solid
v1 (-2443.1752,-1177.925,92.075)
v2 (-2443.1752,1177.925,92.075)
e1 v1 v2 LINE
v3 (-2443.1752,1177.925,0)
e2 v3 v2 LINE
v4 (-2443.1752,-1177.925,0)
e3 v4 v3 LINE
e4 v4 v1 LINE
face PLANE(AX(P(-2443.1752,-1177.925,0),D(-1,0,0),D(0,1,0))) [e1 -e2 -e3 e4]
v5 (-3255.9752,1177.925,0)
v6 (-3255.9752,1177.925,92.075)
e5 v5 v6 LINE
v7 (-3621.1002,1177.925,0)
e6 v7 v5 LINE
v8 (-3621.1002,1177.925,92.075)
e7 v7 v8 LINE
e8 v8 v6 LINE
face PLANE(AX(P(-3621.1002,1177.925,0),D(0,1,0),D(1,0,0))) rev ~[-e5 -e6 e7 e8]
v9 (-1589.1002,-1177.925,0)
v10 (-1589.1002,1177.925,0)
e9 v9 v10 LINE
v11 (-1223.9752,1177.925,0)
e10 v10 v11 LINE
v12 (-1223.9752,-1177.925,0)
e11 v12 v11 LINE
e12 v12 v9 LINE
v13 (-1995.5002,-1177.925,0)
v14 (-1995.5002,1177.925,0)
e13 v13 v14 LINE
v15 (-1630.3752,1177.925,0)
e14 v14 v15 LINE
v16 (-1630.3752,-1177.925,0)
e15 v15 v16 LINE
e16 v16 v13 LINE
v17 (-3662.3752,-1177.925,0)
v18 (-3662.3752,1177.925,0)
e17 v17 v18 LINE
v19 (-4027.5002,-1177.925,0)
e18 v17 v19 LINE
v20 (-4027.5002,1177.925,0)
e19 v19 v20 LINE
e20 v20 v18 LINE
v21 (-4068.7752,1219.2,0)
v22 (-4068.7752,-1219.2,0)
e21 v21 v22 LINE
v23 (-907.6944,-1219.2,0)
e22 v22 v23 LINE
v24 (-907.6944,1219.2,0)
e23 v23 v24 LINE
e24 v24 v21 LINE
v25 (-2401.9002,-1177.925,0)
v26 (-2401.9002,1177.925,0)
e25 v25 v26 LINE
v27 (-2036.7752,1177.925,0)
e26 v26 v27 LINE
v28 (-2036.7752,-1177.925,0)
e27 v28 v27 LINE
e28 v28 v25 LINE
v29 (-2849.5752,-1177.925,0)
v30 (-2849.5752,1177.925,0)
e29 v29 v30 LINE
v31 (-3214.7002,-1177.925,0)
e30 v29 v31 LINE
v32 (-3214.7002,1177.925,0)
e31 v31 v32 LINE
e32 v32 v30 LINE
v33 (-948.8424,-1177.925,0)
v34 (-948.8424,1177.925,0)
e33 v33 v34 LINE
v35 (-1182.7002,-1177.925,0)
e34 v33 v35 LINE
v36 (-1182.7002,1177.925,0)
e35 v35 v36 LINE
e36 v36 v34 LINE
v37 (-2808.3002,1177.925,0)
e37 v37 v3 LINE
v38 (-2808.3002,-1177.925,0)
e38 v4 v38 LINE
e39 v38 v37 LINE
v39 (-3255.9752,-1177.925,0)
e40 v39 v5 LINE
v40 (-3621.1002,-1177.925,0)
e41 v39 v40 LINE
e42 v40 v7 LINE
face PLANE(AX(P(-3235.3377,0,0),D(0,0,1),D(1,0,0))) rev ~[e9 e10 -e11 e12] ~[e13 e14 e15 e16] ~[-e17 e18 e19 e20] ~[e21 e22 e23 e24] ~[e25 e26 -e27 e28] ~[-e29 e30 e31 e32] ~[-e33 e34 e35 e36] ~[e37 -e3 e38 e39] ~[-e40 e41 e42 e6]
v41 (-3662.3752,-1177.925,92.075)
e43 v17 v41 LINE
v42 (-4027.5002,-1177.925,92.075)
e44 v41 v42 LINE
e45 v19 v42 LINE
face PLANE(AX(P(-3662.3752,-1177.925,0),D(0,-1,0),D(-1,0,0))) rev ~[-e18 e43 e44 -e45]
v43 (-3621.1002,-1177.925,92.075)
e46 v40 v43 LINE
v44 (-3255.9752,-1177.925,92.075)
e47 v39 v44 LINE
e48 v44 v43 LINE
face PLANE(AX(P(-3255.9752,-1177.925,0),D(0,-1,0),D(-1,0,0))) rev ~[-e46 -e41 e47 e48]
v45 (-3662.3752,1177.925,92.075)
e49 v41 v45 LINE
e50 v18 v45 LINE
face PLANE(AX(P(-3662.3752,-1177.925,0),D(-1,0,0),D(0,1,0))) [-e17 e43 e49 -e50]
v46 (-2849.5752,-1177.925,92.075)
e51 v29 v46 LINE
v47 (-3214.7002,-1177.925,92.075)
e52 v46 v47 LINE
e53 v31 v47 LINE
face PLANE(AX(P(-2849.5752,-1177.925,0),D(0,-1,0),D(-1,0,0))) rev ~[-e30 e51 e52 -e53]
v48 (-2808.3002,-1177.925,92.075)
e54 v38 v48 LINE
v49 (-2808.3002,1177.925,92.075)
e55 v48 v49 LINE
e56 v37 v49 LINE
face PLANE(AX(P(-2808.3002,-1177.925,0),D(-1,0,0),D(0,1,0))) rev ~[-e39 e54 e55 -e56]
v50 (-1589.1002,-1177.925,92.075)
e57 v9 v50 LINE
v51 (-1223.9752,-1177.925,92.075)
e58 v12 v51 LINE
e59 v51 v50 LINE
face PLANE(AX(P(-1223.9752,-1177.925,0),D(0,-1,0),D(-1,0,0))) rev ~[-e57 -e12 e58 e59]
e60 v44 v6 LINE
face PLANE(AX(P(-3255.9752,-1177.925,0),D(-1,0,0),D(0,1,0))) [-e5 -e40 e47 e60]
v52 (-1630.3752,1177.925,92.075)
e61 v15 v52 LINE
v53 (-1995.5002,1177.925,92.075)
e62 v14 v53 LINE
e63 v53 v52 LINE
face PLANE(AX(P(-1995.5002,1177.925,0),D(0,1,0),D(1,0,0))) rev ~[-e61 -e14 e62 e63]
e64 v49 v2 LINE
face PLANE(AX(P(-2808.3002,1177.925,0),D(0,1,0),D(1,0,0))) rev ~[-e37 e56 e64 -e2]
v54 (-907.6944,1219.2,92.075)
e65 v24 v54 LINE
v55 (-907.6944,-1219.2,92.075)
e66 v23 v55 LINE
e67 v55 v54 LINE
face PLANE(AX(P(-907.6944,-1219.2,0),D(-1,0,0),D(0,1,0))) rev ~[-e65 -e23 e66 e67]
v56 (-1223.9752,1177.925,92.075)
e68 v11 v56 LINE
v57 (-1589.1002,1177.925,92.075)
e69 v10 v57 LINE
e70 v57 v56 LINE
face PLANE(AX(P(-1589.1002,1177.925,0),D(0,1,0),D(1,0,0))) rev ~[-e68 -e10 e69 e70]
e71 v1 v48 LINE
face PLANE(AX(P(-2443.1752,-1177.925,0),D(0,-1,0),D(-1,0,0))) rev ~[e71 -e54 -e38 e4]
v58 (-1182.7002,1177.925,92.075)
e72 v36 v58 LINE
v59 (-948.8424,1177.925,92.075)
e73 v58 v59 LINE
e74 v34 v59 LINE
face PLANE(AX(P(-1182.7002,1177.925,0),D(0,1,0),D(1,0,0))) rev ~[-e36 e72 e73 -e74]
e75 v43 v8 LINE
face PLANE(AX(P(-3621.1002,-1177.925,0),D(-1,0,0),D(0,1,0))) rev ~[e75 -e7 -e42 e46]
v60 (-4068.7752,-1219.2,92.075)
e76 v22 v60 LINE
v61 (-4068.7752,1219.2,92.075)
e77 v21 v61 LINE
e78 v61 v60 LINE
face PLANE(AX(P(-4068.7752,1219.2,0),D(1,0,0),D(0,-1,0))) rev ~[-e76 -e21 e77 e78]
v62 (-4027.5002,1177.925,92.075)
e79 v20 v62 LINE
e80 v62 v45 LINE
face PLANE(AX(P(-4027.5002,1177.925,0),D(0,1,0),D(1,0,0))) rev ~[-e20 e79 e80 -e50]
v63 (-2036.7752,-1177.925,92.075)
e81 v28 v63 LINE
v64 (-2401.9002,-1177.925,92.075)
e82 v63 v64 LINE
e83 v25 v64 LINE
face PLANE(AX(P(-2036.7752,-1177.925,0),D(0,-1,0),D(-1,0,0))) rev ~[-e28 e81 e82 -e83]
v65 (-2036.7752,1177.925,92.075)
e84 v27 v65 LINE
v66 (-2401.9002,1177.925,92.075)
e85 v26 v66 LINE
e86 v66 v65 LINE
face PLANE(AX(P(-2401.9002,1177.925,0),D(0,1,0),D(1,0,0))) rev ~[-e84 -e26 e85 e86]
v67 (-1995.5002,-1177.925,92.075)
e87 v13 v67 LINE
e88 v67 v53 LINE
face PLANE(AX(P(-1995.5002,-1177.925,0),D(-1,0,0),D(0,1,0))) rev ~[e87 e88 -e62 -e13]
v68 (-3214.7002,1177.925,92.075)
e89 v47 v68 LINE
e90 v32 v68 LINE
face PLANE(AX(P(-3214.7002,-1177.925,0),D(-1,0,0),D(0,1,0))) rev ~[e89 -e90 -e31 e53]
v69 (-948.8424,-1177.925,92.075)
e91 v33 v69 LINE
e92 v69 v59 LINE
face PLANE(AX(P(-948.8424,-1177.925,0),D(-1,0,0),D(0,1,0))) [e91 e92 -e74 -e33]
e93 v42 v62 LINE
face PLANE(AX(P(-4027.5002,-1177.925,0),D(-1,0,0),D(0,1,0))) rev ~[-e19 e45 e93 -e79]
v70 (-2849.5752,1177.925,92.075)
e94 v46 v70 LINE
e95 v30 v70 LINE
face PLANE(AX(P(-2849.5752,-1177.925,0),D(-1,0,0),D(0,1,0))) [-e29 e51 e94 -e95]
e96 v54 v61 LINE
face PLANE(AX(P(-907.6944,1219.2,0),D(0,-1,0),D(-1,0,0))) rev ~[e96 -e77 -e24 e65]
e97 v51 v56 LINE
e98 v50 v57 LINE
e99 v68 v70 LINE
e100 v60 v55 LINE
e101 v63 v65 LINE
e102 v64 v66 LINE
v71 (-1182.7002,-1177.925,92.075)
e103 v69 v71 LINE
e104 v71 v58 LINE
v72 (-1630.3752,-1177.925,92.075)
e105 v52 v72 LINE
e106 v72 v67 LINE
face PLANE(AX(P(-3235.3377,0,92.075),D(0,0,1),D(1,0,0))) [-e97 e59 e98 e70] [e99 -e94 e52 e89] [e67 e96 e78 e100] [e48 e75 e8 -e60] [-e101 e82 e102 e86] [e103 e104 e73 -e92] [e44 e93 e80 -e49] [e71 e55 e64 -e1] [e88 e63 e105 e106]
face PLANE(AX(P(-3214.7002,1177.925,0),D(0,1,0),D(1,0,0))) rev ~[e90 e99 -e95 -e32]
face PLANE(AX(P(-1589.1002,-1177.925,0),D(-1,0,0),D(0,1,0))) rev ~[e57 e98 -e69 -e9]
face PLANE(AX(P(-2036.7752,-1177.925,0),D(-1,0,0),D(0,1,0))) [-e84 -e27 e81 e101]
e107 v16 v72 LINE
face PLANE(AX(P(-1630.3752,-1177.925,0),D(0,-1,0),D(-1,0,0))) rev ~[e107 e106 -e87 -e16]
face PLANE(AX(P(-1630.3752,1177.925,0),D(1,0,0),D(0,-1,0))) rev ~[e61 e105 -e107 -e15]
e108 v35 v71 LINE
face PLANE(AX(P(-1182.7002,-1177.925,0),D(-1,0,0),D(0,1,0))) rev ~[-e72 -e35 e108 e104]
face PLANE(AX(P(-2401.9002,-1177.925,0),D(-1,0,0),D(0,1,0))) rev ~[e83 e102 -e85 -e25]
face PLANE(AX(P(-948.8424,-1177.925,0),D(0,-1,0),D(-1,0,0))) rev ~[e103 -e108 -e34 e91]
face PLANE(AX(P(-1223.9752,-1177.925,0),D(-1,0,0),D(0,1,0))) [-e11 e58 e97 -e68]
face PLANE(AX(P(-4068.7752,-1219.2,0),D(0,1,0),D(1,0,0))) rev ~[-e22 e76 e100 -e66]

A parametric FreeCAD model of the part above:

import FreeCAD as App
import Part
import Sketcher
from FreeCAD import Vector
Q = App.Units.Quantity


def add_polygon(sketch, points):
    """Adds a closed chain of lines whose ends are joined by coincident constraints."""
    first, n = sketch.GeometryCount, len(points)
    for a, b in zip(points, points[1:] + points[:1]):
        sketch.addGeometry(Part.LineSegment(App.Vector(*a, 0), App.Vector(*b, 0)), False)
    for i in range(n):
        sketch.addConstraint(Sketcher.Constraint("Coincident", first + i, 2, first + (i + 1) % n, 1))

doc = App.newDocument("Part")
body = doc.addObject("PartDesign::Body", "Body")

# Sketch on XY plane
sketch1 = body.newObject("Sketcher::SketchObject", "Sketch")
sketch1.AttachmentSupport = (doc.getObject("XY_Plane"), [""])
sketch1.MapMode = "FlatFace"
add_polygon(sketch1, [(-908, -1219), (-908, 1219), (-4069, 1219), (-4069, -1219)])  # lines 0-3
add_polygon(sketch1, [(-3662, -1178), (-4028, -1178), (-4028, 1178), (-3662, 1178)])  # lines 4-7
add_polygon(sketch1, [(-3256, 1178), (-3256, -1178), (-3621, -1178), (-3621, 1178)])  # lines 8-11
add_polygon(sketch1, [(-3215, -1178), (-3215, 1178), (-2850, 1178), (-2850, -1178)])  # lines 12-15
add_polygon(sketch1, [(-2808, -1178), (-2808, 1178), (-2443, 1178), (-2443, -1178)])  # lines 16-19
add_polygon(sketch1, [(-2402, -1178), (-2402, 1178), (-2037, 1178), (-2037, -1178)])  # lines 20-23
add_polygon(sketch1, [(-1996, 1178), (-1630, 1178), (-1630, -1178), (-1996, -1178)])  # lines 24-27
add_polygon(sketch1, [(-1224, 1178), (-1224, -1178), (-1589, -1178), (-1589, 1178)])  # lines 28-31
add_polygon(sketch1, [(-949, 1178), (-949, -1178), (-1183, -1178), (-1183, 1178)])  # lines 32-35
sketch1.addConstraint([
    Sketcher.Constraint("Vertical", 0),
    Sketcher.Constraint("Horizontal", 1),
    Sketcher.Constraint("Vertical", 2),
    Sketcher.Constraint("Horizontal", 3),
    Sketcher.Constraint("Horizontal", 4),
    Sketcher.Constraint("Vertical", 5),
    Sketcher.Constraint("Horizontal", 6),
    Sketcher.Constraint("Vertical", 7),
    Sketcher.Constraint("Vertical", 8),
    Sketcher.Constraint("Horizontal", 9),
    Sketcher.Constraint("Vertical", 10),
    Sketcher.Constraint("Horizontal", 11),
    Sketcher.Constraint("Vertical", 12),
    Sketcher.Constraint("Horizontal", 13),
    Sketcher.Constraint("Vertical", 14),
    Sketcher.Constraint("Horizontal", 15),
    Sketcher.Constraint("Vertical", 16),
    Sketcher.Constraint("Horizontal", 17),
    Sketcher.Constraint("Vertical", 18),
    Sketcher.Constraint("Horizontal", 19),
    Sketcher.Constraint("Vertical", 20),
    Sketcher.Constraint("Horizontal", 21),
    Sketcher.Constraint("Vertical", 22),
    Sketcher.Constraint("Horizontal", 23),
    Sketcher.Constraint("Horizontal", 24),
    Sketcher.Constraint("Vertical", 25),
    Sketcher.Constraint("Horizontal", 26),
    Sketcher.Constraint("Vertical", 27),
    Sketcher.Constraint("Vertical", 28),
    Sketcher.Constraint("Horizontal", 29),
    Sketcher.Constraint("Vertical", 30),
    Sketcher.Constraint("Horizontal", 31),
    Sketcher.Constraint("Vertical", 32),
    Sketcher.Constraint("Horizontal", 33),
    Sketcher.Constraint("Vertical", 34),
    Sketcher.Constraint("Horizontal", 35),
    Sketcher.Constraint("Horizontal", 7, 2, 8, 2),
    Sketcher.Constraint("Horizontal", 6, 2, 10, 2),
    Sketcher.Constraint("Horizontal", 11, 2, 12, 2),
    Sketcher.Constraint("Horizontal", 9, 2, 14, 2),
    Sketcher.Constraint("Horizontal", 13, 2, 16, 2),
    Sketcher.Constraint("Horizontal", 15, 2, 18, 2),
    Sketcher.Constraint("Horizontal", 17, 2, 20, 2),
    Sketcher.Constraint("Horizontal", 19, 2, 22, 2),
    Sketcher.Constraint("Horizontal", 21, 2, 24, 2),
    Sketcher.Constraint("Horizontal", 23, 2, 25, 2),
    Sketcher.Constraint("Horizontal", 26, 2, 28, 2),
    Sketcher.Constraint("Horizontal", 27, 2, 30, 2),
    Sketcher.Constraint("Horizontal", 29, 2, 32, 2),
    Sketcher.Constraint("Horizontal", 31, 2, 34, 2),
    Sketcher.Constraint("Equal", 6, 9),
    Sketcher.Constraint("Equal", 11, 13),
    Sketcher.Constraint("Equal", 15, 17),
    Sketcher.Constraint("Equal", 19, 21),
    Sketcher.Constraint("Equal", 23, 24),
    Sketcher.Constraint("Equal", 26, 29),
    Sketcher.Constraint("DistanceY", 0, 1, 0, 2, Q("96 in")),
    Sketcher.Constraint("DistanceY", -1, 1, 0, 2, Q("48 in")),
    Sketcher.Constraint("DistanceX", 1, 2, 6, 2, Q("16 in")),
    Sketcher.Constraint("DistanceX", 7, 2, 8, 2, Q("16 in")),
    Sketcher.Constraint("DistanceX", 10, 2, 12, 2, Q("16 in")),
    Sketcher.Constraint("DistanceX", 12, 2, 16, 2, Q("16 in")),
    Sketcher.Constraint("DistanceX", 16, 2, 20, 2, Q("16 in")),
    Sketcher.Constraint("DistanceX", 21, 2, 24, 2, Q("16 in")),
    Sketcher.Constraint("DistanceX", 25, 2, 28, 2, Q("16 in")),
    Sketcher.Constraint("DistanceX", 29, 2, 33, 2, Q("16 in")),
    Sketcher.Constraint("DistanceY", 5, 1, 5, 2, Q("92.75 in")),
    Sketcher.Constraint("DistanceX", 1, 2, 1, 1, Q("124.452 in")),
    Sketcher.Constraint("DistanceX", 4, 2, 4, 1, Q("14.375 in")),
    Sketcher.Constraint("DistanceX", 33, 2, 33, 1, Q("9.207 in")),
    Sketcher.Constraint("DistanceX", 0, 2, -1, 1, Q("35.736 in")),
    Sketcher.Constraint("DistanceY", 4, 2, -1, 1, Q("46.375 in")),
])
pad1 = body.newObject("PartDesign::Pad", "Pad")
pad1.Profile = sketch1
pad1.Length = Q("3.625 in")

doc.recompute()
